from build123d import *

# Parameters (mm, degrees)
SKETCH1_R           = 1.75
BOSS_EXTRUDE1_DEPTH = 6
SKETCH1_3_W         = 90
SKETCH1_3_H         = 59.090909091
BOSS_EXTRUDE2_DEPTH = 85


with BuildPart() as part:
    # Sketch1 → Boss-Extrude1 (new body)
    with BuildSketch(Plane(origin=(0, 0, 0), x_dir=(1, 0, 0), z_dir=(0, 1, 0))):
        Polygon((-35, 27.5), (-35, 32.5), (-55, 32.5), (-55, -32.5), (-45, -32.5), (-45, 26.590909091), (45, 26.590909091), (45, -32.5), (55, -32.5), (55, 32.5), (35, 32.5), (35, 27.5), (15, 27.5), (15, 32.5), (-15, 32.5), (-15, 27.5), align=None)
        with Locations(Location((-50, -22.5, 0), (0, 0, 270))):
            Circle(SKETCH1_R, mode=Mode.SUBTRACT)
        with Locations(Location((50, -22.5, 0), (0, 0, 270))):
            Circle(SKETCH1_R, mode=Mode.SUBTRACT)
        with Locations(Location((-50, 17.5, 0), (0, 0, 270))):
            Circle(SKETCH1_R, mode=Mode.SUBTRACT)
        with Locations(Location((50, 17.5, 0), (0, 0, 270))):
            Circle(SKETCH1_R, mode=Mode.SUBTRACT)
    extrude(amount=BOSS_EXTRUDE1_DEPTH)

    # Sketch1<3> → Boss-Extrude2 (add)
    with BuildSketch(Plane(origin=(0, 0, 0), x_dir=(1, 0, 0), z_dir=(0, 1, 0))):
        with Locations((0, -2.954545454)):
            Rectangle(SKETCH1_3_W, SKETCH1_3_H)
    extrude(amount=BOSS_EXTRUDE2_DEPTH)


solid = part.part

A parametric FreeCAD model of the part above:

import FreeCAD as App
import Part
import Sketcher


def add_polygon(sketch, points):
    """Adds a closed chain of lines whose ends are joined by coincident constraints."""
    first, n = sketch.GeometryCount, len(points)
    for a, b in zip(points, points[1:] + points[:1]):
        sketch.addGeometry(Part.LineSegment(App.Vector(*a, 0), App.Vector(*b, 0)), False)
    for i in range(n):
        sketch.addConstraint(Sketcher.Constraint("Coincident", first + i, 2, first + (i + 1) % n, 1))

doc = App.newDocument("Part")
params = doc.addObject("Spreadsheet::Sheet", "Params")
for row, (alias, value) in enumerate([
    ("sketch1_diameter", "3.5 mm"),
    ("sketch1_width", "20 mm"),
    ("sketch1_width2", "10 mm"),
    ("sketch1_width3", "90 mm"),
    ("sketch1_height", "5 mm"),
    ("pad1_length", "6 mm"),
    ("sketch2_width", "90 mm"),
    ("pad2_length", "85 mm"),
], start=1):
    params.set(f"A{row}", alias)
    params.set(f"B{row}", "=" + value)
    params.setAlias(f"B{row}", alias)

body = doc.addObject("PartDesign::Body", "Body")

sketch1 = body.newObject("Sketcher::SketchObject", "Sketch")
sketch1.AttachmentSupport = (doc.getObject("XZ_Plane"), [""])
sketch1.MapMode = "FlatFace"
add_polygon(sketch1, [(-35, -27.5), (-35, -32.5), (-55, -32.5), (-55, 32.5), (-45, 32.5), (-45, -26.6), (45, -26.6), (45, 32.5), (55, 32.5), (55, -32.5), (35, -32.5), (35, -27.5), (15, -27.5), (15, -32.5), (-15, -32.5), (-15, -27.5)])
sketch1.addGeometry(Part.Circle(App.Vector(-50, 22.5, 0), App.Vector(0, 0, 1), 1.8), False)
sketch1.addGeometry(Part.Circle(App.Vector(50, 22.5, 0), App.Vector(0, 0, 1), 1.8), False)
sketch1.addGeometry(Part.Circle(App.Vector(-50, -17.5, 0), App.Vector(0, 0, 1), 1.8), False)
sketch1.addGeometry(Part.Circle(App.Vector(50, -17.5, 0), App.Vector(0, 0, 1), 1.8), False)
sketch1.addConstraint([
    Sketcher.Constraint("Vertical", 0),
    Sketcher.Constraint("Horizontal", 1),
    Sketcher.Constraint("Vertical", 2),
    Sketcher.Constraint("Horizontal", 3),
    Sketcher.Constraint("Vertical", 4),
    Sketcher.Constraint("Horizontal", 5),
    Sketcher.Constraint("Vertical", 6),
    Sketcher.Constraint("Horizontal", 7),
    Sketcher.Constraint("Vertical", 8),
    Sketcher.Constraint("Horizontal", 9),
    Sketcher.Constraint("Vertical", 10),
    Sketcher.Constraint("Horizontal", 11),
    Sketcher.Constraint("Vertical", 12),
    Sketcher.Constraint("Horizontal", 13),
    Sketcher.Constraint("Vertical", 14),
    Sketcher.Constraint("Horizontal", 15),
    Sketcher.Constraint("Equal", 16, 17),
    Sketcher.Constraint("Equal", 17, 18),
    Sketcher.Constraint("Equal", 18, 19),
    Sketcher.Constraint("Symmetric", 1, 2, 7, 2, -1, 1),
    Sketcher.Constraint("Symmetric", 16, 3, 17, 3, -2),
    Sketcher.Constraint("Symmetric", 18, 3, 19, 3, -2),
    Sketcher.Constraint("Symmetric", 3, 2, 6, 2, -2),
    Sketcher.Constraint("Symmetric", 0, 2, 9, 2, -2),
    Sketcher.Constraint("Symmetric", 11, 2, 14, 2, -2),
    Sketcher.Constraint("Horizontal", 9, 2, 12, 2),
    Sketcher.Constraint("Vertical", 16, 3, 18, 3),
    Sketcher.Constraint("Equal", 9, 11),
    Sketcher.Constraint("Diameter", 16, 3.5),
    Sketcher.Constraint("DistanceX", 1, 2, 1, 1, 20.0),
    Sketcher.Constraint("DistanceX", 3, 1, 3, 2, 10.0),
    Sketcher.Constraint("DistanceX", 5, 1, 5, 2, 90.0),
    Sketcher.Constraint("DistanceY", 0, 2, 0, 1, 5.0),
    Sketcher.Constraint("DistanceY", 2, 1, 2, 2, 65.0),
    Sketcher.Constraint("DistanceX", 16, 3, -1, 1, 50.0),
    Sketcher.Constraint("DistanceY", 18, 3, 16, 3, 40.0),
    Sketcher.Constraint("DistanceY", 0, 2, 18, 3, 15.0),
    Sketcher.Constraint("DistanceY", 4, 2, 4, 1, 59.090909),
])
sketch1.setExpression("Constraints[44]", "Params.sketch1_diameter")
sketch1.setExpression("Constraints[45]", "Params.sketch1_width")
sketch1.setExpression("Constraints[46]", "Params.sketch1_width2")
sketch1.setExpression("Constraints[47]", "Params.sketch1_width3")
sketch1.setExpression("Constraints[48]", "Params.sketch1_height")
pad1 = body.newObject("PartDesign::Pad", "Pad")
pad1.Profile = sketch1
pad1.setExpression("Length", "Params.pad1_length")
pad1.Reversed = True

sketch2 = body.newObject("Sketcher::SketchObject", "Sketch001")
sketch2.AttachmentSupport = (doc.getObject("XZ_Plane"), [""])
sketch2.MapMode = "FlatFace"
add_polygon(sketch2, [(-45, -27), (-45, 32), (45, 32), (45, -27)])
sketch2.addConstraint([
    Sketcher.Constraint("Vertical", 0),
    Sketcher.Constraint("Horizontal", 1),
    Sketcher.Constraint("Vertical", 2),
    Sketcher.Constraint("Horizontal", 3),
    Sketcher.Constraint("DistanceX", 1, 1, 1, 2, 90.0),
    Sketcher.Constraint("DistanceX", 0, 2, -1, 1, 45.0),
    Sketcher.Constraint("DistanceY", -1, 1, 0, 2, 32.5),
    Sketcher.Constraint("DistanceY", 0, 1, 0, 2, 59.090909),
])
sketch2.setExpression("Constraints[8]", "Params.sketch2_width")
pad2 = body.newObject("PartDesign::Pad", "Pad001")
pad2.Profile = sketch2
pad2.setExpression("Length", "Params.pad2_length")
pad2.Reversed = True

doc.recompute()
